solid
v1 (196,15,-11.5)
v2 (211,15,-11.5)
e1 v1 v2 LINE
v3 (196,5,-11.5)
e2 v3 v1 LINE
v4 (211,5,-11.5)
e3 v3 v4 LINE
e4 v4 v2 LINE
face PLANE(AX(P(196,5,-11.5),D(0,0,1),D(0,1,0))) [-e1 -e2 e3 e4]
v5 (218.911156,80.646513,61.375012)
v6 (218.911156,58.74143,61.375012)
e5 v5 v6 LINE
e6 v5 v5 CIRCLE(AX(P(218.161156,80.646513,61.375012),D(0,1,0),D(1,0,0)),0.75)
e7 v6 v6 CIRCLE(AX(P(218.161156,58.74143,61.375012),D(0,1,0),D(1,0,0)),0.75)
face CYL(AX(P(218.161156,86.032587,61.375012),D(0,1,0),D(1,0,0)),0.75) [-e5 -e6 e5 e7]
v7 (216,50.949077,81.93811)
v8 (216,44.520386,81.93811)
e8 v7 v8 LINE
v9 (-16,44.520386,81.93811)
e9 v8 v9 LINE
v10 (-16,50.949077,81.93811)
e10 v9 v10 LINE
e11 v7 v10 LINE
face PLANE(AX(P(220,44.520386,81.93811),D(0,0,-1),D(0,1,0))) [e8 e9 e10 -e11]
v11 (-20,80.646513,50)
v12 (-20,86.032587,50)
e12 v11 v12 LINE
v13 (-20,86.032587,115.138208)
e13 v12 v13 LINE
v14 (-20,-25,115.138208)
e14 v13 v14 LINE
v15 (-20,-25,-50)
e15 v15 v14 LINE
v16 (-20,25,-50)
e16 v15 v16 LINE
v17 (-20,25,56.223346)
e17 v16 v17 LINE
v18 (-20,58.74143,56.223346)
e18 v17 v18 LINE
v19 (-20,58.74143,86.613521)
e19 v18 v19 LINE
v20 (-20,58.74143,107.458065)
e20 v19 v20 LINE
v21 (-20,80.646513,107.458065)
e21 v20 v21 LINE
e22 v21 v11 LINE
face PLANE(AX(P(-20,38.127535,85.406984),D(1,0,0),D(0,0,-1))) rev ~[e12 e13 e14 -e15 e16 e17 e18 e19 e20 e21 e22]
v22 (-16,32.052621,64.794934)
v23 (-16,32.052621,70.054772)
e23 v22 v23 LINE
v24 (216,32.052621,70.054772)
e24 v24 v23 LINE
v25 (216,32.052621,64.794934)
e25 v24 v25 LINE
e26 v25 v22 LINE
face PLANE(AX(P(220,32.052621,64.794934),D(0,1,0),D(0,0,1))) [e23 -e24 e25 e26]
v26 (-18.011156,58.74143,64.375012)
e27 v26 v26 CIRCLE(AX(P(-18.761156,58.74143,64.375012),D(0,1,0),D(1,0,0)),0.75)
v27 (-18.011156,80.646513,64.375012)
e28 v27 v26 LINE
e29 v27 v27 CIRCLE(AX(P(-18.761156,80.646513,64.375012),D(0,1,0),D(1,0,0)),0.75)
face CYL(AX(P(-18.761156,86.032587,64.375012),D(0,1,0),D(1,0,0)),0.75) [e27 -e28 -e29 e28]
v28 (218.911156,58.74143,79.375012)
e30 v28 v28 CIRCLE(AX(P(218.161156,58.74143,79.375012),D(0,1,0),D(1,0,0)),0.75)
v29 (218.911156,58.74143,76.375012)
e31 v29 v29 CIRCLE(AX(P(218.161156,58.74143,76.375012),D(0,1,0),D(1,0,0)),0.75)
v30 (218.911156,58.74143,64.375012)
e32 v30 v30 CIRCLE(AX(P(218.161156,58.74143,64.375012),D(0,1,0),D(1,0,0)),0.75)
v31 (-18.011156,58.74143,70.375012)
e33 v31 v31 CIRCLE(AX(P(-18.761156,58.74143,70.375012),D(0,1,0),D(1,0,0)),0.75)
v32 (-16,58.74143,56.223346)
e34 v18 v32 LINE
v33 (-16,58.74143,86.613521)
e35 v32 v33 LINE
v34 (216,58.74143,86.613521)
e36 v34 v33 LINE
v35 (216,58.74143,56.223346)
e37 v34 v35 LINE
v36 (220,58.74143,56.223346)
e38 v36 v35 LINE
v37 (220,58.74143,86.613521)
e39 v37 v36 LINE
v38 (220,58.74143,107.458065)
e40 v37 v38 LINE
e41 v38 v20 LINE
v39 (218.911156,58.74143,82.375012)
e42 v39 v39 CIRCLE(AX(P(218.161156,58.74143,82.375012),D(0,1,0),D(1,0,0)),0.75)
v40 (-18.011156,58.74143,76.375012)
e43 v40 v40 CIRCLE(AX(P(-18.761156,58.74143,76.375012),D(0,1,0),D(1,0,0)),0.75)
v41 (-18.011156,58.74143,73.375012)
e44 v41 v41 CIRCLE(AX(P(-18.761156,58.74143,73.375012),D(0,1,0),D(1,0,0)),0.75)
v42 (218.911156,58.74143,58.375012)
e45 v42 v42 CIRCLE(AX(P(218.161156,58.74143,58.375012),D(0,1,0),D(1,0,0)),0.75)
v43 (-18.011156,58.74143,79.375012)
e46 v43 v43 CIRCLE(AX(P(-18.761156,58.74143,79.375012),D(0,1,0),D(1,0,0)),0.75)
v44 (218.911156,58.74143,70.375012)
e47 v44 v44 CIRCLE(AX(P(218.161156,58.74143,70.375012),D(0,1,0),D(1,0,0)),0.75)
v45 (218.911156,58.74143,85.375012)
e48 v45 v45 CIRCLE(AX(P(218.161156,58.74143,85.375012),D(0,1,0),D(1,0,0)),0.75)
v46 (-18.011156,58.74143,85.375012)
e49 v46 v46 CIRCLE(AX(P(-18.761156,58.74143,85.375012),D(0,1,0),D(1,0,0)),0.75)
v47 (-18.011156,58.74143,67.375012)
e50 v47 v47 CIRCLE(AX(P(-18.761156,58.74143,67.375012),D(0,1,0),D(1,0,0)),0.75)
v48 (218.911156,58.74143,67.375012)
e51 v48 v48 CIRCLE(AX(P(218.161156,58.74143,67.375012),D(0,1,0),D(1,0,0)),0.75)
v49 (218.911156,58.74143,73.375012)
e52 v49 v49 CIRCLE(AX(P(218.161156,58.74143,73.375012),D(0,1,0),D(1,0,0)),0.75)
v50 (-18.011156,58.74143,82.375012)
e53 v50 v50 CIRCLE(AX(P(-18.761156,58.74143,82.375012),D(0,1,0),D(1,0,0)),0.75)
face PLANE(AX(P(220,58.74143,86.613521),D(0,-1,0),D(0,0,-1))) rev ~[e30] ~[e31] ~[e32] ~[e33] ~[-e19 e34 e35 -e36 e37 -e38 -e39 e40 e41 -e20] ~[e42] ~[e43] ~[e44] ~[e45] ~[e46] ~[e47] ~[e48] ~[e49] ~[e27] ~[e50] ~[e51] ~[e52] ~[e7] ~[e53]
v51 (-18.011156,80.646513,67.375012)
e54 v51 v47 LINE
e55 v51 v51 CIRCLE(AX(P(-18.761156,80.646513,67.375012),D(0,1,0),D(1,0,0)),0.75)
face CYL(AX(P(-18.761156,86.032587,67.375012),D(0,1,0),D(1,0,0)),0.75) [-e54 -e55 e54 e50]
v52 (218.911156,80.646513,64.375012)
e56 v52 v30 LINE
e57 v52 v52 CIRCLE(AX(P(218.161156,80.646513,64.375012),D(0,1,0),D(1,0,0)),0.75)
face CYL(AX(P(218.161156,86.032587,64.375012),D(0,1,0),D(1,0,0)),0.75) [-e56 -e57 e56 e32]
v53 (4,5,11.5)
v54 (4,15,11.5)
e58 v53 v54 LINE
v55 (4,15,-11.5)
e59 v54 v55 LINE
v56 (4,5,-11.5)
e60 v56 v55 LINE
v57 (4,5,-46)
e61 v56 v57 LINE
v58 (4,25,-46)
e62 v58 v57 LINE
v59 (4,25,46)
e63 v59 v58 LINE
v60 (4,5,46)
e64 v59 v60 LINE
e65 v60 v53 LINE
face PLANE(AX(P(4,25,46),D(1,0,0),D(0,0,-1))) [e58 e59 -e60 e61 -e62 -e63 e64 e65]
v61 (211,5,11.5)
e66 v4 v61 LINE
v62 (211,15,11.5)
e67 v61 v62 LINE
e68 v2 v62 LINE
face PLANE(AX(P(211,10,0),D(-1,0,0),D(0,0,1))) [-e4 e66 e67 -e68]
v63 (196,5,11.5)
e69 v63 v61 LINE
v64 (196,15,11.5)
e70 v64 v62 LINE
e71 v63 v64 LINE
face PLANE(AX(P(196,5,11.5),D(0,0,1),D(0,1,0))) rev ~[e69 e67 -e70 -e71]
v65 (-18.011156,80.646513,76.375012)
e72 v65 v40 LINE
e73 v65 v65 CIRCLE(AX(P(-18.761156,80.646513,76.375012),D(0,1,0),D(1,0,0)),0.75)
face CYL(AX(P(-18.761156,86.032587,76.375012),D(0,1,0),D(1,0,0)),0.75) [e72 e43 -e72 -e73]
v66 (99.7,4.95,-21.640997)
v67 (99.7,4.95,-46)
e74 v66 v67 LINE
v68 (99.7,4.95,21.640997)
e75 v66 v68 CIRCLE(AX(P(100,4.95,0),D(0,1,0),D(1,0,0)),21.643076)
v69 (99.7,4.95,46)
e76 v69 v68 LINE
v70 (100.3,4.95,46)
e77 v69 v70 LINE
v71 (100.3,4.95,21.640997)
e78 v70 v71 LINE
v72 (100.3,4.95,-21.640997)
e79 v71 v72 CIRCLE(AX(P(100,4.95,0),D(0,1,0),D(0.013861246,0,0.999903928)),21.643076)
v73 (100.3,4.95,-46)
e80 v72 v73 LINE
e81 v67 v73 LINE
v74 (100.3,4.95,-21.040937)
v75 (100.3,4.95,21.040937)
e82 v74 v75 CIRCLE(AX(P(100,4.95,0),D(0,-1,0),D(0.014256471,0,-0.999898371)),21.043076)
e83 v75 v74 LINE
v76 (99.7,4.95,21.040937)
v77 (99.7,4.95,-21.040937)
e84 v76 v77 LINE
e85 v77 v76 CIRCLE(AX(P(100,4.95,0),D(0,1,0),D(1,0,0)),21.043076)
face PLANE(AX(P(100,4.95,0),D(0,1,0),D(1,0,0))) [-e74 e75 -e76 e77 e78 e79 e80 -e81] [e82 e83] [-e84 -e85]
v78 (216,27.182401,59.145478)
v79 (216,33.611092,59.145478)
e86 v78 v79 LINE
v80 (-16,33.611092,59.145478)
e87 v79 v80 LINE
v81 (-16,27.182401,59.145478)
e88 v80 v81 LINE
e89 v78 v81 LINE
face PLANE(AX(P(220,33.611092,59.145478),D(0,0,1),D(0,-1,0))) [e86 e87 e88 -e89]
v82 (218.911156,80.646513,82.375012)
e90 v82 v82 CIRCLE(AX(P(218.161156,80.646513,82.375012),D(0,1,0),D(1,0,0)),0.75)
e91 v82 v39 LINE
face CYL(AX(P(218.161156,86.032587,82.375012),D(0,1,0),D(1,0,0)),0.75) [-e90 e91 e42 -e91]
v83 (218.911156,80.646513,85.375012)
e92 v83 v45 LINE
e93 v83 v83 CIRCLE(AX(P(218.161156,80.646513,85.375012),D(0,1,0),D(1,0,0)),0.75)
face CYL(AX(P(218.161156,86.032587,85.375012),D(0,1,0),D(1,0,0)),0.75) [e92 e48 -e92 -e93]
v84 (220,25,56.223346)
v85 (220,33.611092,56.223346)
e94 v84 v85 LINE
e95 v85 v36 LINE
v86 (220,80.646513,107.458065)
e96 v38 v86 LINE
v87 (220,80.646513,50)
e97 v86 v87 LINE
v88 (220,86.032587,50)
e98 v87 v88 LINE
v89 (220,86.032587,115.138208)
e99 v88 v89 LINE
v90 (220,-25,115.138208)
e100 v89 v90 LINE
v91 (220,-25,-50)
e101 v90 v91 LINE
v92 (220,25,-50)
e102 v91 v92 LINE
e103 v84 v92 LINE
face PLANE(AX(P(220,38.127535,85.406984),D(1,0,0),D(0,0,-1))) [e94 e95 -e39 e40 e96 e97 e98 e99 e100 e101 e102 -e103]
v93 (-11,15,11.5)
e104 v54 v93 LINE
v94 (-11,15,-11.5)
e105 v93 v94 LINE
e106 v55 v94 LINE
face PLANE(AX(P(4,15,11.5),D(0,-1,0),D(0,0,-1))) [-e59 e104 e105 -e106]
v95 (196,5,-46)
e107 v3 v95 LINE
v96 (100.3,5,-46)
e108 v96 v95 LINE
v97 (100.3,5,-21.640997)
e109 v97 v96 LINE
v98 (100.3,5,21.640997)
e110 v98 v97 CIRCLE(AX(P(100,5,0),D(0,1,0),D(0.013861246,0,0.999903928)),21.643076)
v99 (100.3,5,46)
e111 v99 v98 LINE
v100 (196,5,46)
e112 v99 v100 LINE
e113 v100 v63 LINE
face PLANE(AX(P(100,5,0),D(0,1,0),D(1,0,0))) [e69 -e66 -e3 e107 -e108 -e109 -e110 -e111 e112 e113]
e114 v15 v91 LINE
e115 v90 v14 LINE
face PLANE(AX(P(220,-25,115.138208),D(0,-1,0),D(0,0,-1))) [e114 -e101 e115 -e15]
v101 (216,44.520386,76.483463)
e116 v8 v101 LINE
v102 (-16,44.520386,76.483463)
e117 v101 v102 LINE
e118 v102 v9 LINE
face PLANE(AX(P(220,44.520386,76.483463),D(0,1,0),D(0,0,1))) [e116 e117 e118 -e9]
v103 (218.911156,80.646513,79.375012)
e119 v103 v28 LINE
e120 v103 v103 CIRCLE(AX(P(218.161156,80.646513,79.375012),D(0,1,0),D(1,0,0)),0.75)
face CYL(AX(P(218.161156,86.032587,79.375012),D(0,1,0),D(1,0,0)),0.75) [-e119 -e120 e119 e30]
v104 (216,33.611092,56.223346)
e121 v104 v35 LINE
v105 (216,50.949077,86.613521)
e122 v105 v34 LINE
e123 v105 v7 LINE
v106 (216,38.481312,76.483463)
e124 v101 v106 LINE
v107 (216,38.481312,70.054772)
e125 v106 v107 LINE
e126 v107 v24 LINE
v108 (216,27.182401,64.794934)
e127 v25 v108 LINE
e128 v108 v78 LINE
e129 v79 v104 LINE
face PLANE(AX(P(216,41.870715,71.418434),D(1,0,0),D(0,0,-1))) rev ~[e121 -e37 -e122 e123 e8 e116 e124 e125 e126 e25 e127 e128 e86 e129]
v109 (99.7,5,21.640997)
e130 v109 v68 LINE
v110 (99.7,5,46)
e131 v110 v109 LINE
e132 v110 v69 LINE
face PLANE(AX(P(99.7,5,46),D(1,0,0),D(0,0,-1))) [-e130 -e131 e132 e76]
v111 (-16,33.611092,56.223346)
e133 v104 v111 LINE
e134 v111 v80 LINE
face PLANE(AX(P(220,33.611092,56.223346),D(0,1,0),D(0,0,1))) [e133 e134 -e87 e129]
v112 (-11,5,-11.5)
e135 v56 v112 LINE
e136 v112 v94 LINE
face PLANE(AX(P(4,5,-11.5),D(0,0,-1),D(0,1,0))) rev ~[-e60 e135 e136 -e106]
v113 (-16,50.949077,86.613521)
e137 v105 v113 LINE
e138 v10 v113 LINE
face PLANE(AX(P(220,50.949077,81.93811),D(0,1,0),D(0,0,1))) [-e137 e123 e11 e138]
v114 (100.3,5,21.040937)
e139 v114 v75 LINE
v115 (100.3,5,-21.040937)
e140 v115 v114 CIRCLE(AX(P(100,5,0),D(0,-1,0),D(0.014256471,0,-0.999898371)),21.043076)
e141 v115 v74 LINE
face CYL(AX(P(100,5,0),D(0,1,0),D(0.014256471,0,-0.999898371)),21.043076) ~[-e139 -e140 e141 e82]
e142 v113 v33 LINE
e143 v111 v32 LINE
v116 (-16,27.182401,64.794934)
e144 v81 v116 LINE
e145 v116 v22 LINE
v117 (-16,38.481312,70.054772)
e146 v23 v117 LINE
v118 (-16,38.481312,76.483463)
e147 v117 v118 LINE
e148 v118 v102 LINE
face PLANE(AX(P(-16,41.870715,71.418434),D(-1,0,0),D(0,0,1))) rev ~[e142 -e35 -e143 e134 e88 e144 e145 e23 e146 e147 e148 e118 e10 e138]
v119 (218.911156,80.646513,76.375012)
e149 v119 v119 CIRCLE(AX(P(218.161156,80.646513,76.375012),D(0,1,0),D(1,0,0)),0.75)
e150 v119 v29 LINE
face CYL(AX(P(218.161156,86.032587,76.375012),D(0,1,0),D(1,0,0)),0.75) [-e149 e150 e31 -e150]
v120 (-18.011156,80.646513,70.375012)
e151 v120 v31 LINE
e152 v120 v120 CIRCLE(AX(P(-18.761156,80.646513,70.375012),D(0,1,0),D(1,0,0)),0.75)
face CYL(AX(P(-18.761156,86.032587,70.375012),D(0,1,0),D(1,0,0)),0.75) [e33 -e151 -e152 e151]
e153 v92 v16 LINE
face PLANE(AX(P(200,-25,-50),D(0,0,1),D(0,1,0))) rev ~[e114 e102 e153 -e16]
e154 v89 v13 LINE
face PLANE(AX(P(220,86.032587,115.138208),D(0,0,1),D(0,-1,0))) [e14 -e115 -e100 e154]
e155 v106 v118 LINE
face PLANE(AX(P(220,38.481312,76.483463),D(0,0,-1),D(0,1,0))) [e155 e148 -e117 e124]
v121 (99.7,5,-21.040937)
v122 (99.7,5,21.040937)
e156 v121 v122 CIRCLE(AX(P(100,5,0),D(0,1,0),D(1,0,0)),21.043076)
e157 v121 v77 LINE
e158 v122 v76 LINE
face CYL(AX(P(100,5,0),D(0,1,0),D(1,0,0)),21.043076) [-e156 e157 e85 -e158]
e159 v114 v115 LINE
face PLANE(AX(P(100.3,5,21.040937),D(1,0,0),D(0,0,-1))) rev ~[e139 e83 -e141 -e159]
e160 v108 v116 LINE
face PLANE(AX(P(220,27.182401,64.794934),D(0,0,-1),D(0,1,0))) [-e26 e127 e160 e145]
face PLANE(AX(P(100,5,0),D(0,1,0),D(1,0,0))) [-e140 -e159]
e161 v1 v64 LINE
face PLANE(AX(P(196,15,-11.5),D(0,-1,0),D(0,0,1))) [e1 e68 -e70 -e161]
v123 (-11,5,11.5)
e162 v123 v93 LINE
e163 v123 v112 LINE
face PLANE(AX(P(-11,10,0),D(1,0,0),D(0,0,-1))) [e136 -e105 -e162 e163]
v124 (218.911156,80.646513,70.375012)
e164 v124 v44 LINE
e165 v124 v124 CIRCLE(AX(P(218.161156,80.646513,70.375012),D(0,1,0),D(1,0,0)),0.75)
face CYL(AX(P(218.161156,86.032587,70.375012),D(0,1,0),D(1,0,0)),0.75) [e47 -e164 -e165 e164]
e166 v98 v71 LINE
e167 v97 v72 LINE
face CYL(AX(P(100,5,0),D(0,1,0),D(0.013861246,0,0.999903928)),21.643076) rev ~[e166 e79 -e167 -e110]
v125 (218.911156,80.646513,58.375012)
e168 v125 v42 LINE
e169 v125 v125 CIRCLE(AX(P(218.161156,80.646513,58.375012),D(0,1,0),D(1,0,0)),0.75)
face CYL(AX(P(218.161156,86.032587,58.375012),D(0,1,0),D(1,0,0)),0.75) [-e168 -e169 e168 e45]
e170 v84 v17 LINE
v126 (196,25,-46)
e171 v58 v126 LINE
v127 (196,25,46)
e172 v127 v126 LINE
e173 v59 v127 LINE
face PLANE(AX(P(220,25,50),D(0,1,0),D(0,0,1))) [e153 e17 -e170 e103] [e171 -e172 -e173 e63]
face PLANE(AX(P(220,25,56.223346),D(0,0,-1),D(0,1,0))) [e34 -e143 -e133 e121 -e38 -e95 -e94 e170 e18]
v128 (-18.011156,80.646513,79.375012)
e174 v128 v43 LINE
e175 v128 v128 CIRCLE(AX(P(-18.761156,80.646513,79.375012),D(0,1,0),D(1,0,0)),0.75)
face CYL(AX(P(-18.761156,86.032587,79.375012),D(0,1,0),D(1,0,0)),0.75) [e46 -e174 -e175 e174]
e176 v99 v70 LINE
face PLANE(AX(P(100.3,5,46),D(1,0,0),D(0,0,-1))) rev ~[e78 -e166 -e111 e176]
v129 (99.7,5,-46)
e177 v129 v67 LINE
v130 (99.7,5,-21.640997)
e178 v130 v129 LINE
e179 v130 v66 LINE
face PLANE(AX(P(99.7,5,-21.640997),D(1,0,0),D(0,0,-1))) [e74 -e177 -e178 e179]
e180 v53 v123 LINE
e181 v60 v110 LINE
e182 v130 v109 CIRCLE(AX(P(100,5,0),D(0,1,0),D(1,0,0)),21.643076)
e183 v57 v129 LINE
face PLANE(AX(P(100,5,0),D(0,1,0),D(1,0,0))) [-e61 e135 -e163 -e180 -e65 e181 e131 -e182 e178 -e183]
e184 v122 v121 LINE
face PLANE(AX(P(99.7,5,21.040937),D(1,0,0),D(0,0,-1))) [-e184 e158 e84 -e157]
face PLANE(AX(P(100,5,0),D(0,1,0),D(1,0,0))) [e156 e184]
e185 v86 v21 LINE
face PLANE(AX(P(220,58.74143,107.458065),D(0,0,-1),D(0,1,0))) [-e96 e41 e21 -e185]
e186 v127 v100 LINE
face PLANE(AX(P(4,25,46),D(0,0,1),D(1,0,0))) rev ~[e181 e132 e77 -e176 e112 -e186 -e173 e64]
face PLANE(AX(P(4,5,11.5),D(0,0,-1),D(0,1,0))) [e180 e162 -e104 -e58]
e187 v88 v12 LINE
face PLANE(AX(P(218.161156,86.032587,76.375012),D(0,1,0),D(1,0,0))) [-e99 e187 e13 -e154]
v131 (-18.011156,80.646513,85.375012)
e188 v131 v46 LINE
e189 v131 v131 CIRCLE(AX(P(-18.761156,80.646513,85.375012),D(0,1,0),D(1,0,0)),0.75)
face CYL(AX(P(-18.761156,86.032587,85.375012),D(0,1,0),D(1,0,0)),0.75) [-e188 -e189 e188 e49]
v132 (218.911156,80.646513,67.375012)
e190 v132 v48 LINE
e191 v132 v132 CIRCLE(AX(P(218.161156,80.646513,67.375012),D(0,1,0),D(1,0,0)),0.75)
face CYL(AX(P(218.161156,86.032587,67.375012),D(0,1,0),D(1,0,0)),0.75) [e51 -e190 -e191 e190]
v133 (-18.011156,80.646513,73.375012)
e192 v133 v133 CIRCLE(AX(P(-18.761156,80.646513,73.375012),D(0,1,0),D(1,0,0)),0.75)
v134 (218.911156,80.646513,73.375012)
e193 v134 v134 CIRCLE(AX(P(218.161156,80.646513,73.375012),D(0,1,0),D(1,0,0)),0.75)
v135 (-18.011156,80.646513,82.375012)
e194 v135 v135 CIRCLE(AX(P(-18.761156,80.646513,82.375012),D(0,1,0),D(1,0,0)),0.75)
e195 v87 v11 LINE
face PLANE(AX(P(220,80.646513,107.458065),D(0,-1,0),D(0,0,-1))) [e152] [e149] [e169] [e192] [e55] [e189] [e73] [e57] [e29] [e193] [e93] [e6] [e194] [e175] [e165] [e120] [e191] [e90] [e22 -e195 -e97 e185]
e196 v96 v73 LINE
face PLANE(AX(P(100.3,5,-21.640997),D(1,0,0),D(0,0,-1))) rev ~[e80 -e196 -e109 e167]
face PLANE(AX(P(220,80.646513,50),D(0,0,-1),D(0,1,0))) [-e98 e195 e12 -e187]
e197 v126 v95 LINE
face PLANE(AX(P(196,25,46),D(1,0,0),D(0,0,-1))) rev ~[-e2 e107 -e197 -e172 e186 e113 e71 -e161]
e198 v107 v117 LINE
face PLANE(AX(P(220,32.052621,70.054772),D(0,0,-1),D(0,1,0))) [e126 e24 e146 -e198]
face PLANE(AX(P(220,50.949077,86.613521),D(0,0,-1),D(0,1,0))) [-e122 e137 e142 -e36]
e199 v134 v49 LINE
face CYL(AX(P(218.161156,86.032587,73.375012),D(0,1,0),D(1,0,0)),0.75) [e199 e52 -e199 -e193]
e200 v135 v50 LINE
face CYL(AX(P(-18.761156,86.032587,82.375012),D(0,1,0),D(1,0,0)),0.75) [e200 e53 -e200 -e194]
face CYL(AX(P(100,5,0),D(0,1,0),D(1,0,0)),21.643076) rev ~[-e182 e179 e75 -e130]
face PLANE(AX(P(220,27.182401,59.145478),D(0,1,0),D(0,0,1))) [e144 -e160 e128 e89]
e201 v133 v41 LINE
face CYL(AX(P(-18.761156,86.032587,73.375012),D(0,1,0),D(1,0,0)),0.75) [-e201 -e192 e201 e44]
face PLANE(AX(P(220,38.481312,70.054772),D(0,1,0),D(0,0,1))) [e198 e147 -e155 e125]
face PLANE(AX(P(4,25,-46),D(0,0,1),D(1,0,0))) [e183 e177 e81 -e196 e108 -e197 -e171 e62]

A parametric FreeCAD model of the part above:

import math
import FreeCAD as App
import Part
import Sketcher
from FreeCAD import Vector

doc = App.newDocument("Part")
body = doc.addObject("PartDesign::Body", "Body")

# Sketch on YZ plane
sketch1 = body.newObject("Sketcher::SketchObject", "Sketch")
sketch1.AttachmentSupport = (doc.getObject("YZ_Plane"), [""])
sketch1.MapMode = "FlatFace"
sketch1.addGeometry(Part.LineSegment(Vector(25, 50, 0), Vector(-25, 50, 0)), False)
sketch1.addGeometry(Part.LineSegment(Vector(-25, 50, 0), Vector(-25, -50, 0)), False)
sketch1.addGeometry(Part.LineSegment(Vector(-25, -50, 0), Vector(25, -50, 0)), False)
sketch1.addGeometry(Part.LineSegment(Vector(25, -50, 0), Vector(25, 50, 0)), False)
sketch1.addConstraint(Sketcher.Constraint("Coincident", 0, 2, 1, 1))
sketch1.addConstraint(Sketcher.Constraint("Coincident", 1, 2, 2, 1))
sketch1.addConstraint(Sketcher.Constraint("Coincident", 2, 2, 3, 1))
sketch1.addConstraint(Sketcher.Constraint("Coincident", 3, 2, 0, 1))
sketch1.addConstraint(Sketcher.Constraint("Horizontal", 0))
sketch1.addConstraint(Sketcher.Constraint("Vertical", 1))
sketch1.addConstraint(Sketcher.Constraint("Horizontal", 2))
sketch1.addConstraint(Sketcher.Constraint("Vertical", 3))
sketch1.addConstraint(Sketcher.Constraint("Symmetric", 0, 2, 2, 2, -1, 1))
sketch1.addConstraint(Sketcher.Constraint("DistanceX", 0, 2, 0, 1, 50.0))
sketch1.addConstraint(Sketcher.Constraint("DistanceY", 1, 2, 1, 1, 100.0))
pad1 = body.newObject("PartDesign::Pad", "Pad")
pad1.Profile = sketch1
pad1.Length = 200

# Sketch on XZ plane
sketch2 = body.newObject("Sketcher::SketchObject", "Sketch001")
sketch2.AttachmentSupport = (doc.getObject("XZ_Plane"), [""])
sketch2.MapMode = "FlatFace"
sketch2.AttachmentOffset = App.Placement(Vector(0, 0, -25), App.Rotation())
sketch2.addGeometry(Part.LineSegment(Vector(4, -46, 0), Vector(4, 46, 0)), False)
sketch2.addGeometry(Part.LineSegment(Vector(4, 46, 0), Vector(196, 46, 0)), False)
sketch2.addGeometry(Part.LineSegment(Vector(196, 46, 0), Vector(196, -46, 0)), False)
sketch2.addGeometry(Part.LineSegment(Vector(196, -46, 0), Vector(4, -46, 0)), False)
sketch2.addConstraint(Sketcher.Constraint("Coincident", 0, 2, 1, 1))
sketch2.addConstraint(Sketcher.Constraint("Coincident", 1, 2, 2, 1))
sketch2.addConstraint(Sketcher.Constraint("Coincident", 2, 2, 3, 1))
sketch2.addConstraint(Sketcher.Constraint("Coincident", 3, 2, 0, 1))
sketch2.addConstraint(Sketcher.Constraint("Vertical", 0))
sketch2.addConstraint(Sketcher.Constraint("Horizontal", 1))
sketch2.addConstraint(Sketcher.Constraint("Vertical", 2))
sketch2.addConstraint(Sketcher.Constraint("Horizontal", 3))
sketch2.addConstraint(Sketcher.Constraint("DistanceX", 1, 1, 1, 2, 192.0))
sketch2.addConstraint(Sketcher.Constraint("DistanceY", 0, 1, 0, 2, 92.0))
sketch2.addConstraint(Sketcher.Constraint("DistanceX", -1, 1, 0, 2, 4.0))
sketch2.addConstraint(Sketcher.Constraint("DistanceY", -1, 1, 0, 2, 46.0))
pocket1 = body.newObject("PartDesign::Pocket", "Pocket")
pocket1.Profile = sketch2
pocket1.Length = 20
pocket1.Reversed = True

# Sketch on YZ plane
sketch3 = body.newObject("Sketcher::SketchObject", "Sketch002")
sketch3.AttachmentSupport = (doc.getObject("YZ_Plane"), [""])
sketch3.MapMode = "FlatFace"
sketch3.addGeometry(Part.LineSegment(Vector(25, -50, 0), Vector(-25, -50, 0)), False)
sketch3.addGeometry(Part.LineSegment(Vector(-25, -50, 0), Vector(-25, 50, 0)), False)
sketch3.addGeometry(Part.LineSegment(Vector(-25, 50, 0), Vector(25, 50, 0)), False)
sketch3.addGeometry(Part.LineSegment(Vector(25, 50, 0), Vector(25, -50, 0)), False)
sketch3.addConstraint(Sketcher.Constraint("Coincident", 0, 2, 1, 1))
sketch3.addConstraint(Sketcher.Constraint("Coincident", 1, 2, 2, 1))
sketch3.addConstraint(Sketcher.Constraint("Coincident", 2, 2, 3, 1))
sketch3.addConstraint(Sketcher.Constraint("Coincident", 3, 2, 0, 1))
sketch3.addConstraint(Sketcher.Constraint("Horizontal", 0))
sketch3.addConstraint(Sketcher.Constraint("Vertical", 1))
sketch3.addConstraint(Sketcher.Constraint("Horizontal", 2))
sketch3.addConstraint(Sketcher.Constraint("Vertical", 3))
sketch3.addConstraint(Sketcher.Constraint("Symmetric", 0, 2, 2, 2, -1, 1))
sketch3.addConstraint(Sketcher.Constraint("DistanceX", 0, 2, 0, 1, 50.0))
sketch3.addConstraint(Sketcher.Constraint("DistanceY", 1, 1, 1, 2, 100.0))
pad2 = body.newObject("PartDesign::Pad", "Pad001")
pad2.Profile = sketch3
pad2.Length = 20
pad2.Reversed = True

# Sketch on YZ plane
sketch4 = body.newObject("Sketcher::SketchObject", "Sketch003")
sketch4.AttachmentSupport = (doc.getObject("YZ_Plane"), [""])
sketch4.MapMode = "FlatFace"
sketch4.AttachmentOffset = App.Placement(Vector(0, 0, 200), App.Rotation())
sketch4.addGeometry(Part.LineSegment(Vector(25, 50, 0), Vector(-25, 50, 0)), False)
sketch4.addGeometry(Part.LineSegment(Vector(-25, 50, 0), Vector(-25, -50, 0)), False)
sketch4.addGeometry(Part.LineSegment(Vector(-25, -50, 0), Vector(25, -50, 0)), False)
sketch4.addGeometry(Part.LineSegment(Vector(25, -50, 0), Vector(25, 50, 0)), False)
sketch4.addConstraint(Sketcher.Constraint("Coincident", 0, 2, 1, 1))
sketch4.addConstraint(Sketcher.Constraint("Coincident", 1, 2, 2, 1))
sketch4.addConstraint(Sketcher.Constraint("Coincident", 2, 2, 3, 1))
sketch4.addConstraint(Sketcher.Constraint("Coincident", 3, 2, 0, 1))
sketch4.addConstraint(Sketcher.Constraint("Horizontal", 0))
sketch4.addConstraint(Sketcher.Constraint("Vertical", 1))
sketch4.addConstraint(Sketcher.Constraint("Horizontal", 2))
sketch4.addConstraint(Sketcher.Constraint("Vertical", 3))
sketch4.addConstraint(Sketcher.Constraint("Symmetric", 0, 2, 2, 2, -1, 1))
sketch4.addConstraint(Sketcher.Constraint("DistanceX", 0, 2, 0, 1, 50.0))
sketch4.addConstraint(Sketcher.Constraint("DistanceY", 1, 2, 1, 1, 100.0))
pad3 = body.newObject("PartDesign::Pad", "Pad002")
pad3.Profile = sketch4
pad3.Length = 20

# Sketch on YZ plane
sketch5 = body.newObject("Sketcher::SketchObject", "Sketch004")
sketch5.AttachmentSupport = (doc.getObject("YZ_Plane"), [""])
sketch5.MapMode = "FlatFace"
sketch5.AttachmentOffset = App.Placement(Vector(0, 0, 4), App.Rotation())
sketch5.addGeometry(Part.LineSegment(Vector(15, 12, 0), Vector(5, 12, 0)), False)
sketch5.addGeometry(Part.LineSegment(Vector(5, 12, 0), Vector(5, -12, 0)), False)
sketch5.addGeometry(Part.LineSegment(Vector(5, -12, 0), Vector(15, -12, 0)), False)
sketch5.addGeometry(Part.LineSegment(Vector(15, -12, 0), Vector(15, 12, 0)), False)
sketch5.addConstraint(Sketcher.Constraint("Coincident", 0, 2, 1, 1))
sketch5.addConstraint(Sketcher.Constraint("Coincident", 1, 2, 2, 1))
sketch5.addConstraint(Sketcher.Constraint("Coincident", 2, 2, 3, 1))
sketch5.addConstraint(Sketcher.Constraint("Coincident", 3, 2, 0, 1))
sketch5.addConstraint(Sketcher.Constraint("Horizontal", 0))
sketch5.addConstraint(Sketcher.Constraint("Vertical", 1))
sketch5.addConstraint(Sketcher.Constraint("Horizontal", 2))
sketch5.addConstraint(Sketcher.Constraint("Vertical", 3))
sketch5.addConstraint(Sketcher.Constraint("DistanceX", 0, 2, 0, 1, 10.0))
sketch5.addConstraint(Sketcher.Constraint("DistanceY", 1, 2, 1, 1, 23.0))
sketch5.addConstraint(Sketcher.Constraint("DistanceX", -1, 1, 0, 2, 5.0))
sketch5.addConstraint(Sketcher.Constraint("DistanceY", -1, 1, 0, 2, 11.5))
pocket2 = body.newObject("PartDesign::Pocket", "Pocket001")
pocket2.Profile = sketch5
pocket2.Length = 15

# Sketch on YZ plane
sketch6 = body.newObject("Sketcher::SketchObject", "Sketch005")
sketch6.AttachmentSupport = (doc.getObject("YZ_Plane"), [""])
sketch6.MapMode = "FlatFace"
sketch6.AttachmentOffset = App.Placement(Vector(0, 0, 196), App.Rotation())
sketch6.addGeometry(Part.LineSegment(Vector(15, -12, 0), Vector(5, -12, 0)), False)
sketch6.addGeometry(Part.LineSegment(Vector(5, -12, 0), Vector(5, 12, 0)), False)
sketch6.addGeometry(Part.LineSegment(Vector(5, 12, 0), Vector(15, 12, 0)), False)
sketch6.addGeometry(Part.LineSegment(Vector(15, 12, 0), Vector(15, -12, 0)), False)
sketch6.addConstraint(Sketcher.Constraint("Coincident", 0, 2, 1, 1))
sketch6.addConstraint(Sketcher.Constraint("Coincident", 1, 2, 2, 1))
sketch6.addConstraint(Sketcher.Constraint("Coincident", 2, 2, 3, 1))
sketch6.addConstraint(Sketcher.Constraint("Coincident", 3, 2, 0, 1))
sketch6.addConstraint(Sketcher.Constraint("Horizontal", 0))
sketch6.addConstraint(Sketcher.Constraint("Vertical", 1))
sketch6.addConstraint(Sketcher.Constraint("Horizontal", 2))
sketch6.addConstraint(Sketcher.Constraint("Vertical", 3))
sketch6.addConstraint(Sketcher.Constraint("DistanceX", 0, 2, 0, 1, 10.0))
sketch6.addConstraint(Sketcher.Constraint("DistanceY", 1, 1, 1, 2, 23.0))
sketch6.addConstraint(Sketcher.Constraint("DistanceX", -1, 1, 0, 2, 5.0))
sketch6.addConstraint(Sketcher.Constraint("DistanceY", 0, 2, -1, 1, 11.5))
pocket3 = body.newObject("PartDesign::Pocket", "Pocket002")
pocket3.Profile = sketch6
pocket3.Length = 15
pocket3.Reversed = True

# Sketch on XZ plane
sketch7 = body.newObject("Sketcher::SketchObject", "Sketch006")
sketch7.AttachmentSupport = (doc.getObject("XZ_Plane"), [""])
sketch7.MapMode = "FlatFace"
sketch7.AttachmentOffset = App.Placement(Vector(0, 0, -5), App.Rotation())
sketch7.addGeometry(Part.ArcOfCircle(Part.Circle(Vector(100, 0, 0), Vector(0, 0, 1), 21.6), math.radians(-89), math.radians(89)), False)
sketch7.addGeometry(Part.LineSegment(Vector(100.3, -21.6, 0), Vector(100.3, -46, 0)), False)
sketch7.addGeometry(Part.LineSegment(Vector(100.3, -46, 0), Vector(99.7, -46, 0)), False)
sketch7.addGeometry(Part.LineSegment(Vector(99.7, -46, 0), Vector(99.7, -21.6, 0)), False)
sketch7.addGeometry(Part.ArcOfCircle(Part.Circle(Vector(100, 0, 0), Vector(0, 0, 1), 21.6), math.radians(91), math.radians(269)), False)
sketch7.addGeometry(Part.LineSegment(Vector(99.7, 21.6, 0), Vector(99.7, 46, 0)), False)
sketch7.addGeometry(Part.LineSegment(Vector(99.7, 46, 0), Vector(100.3, 46, 0)), False)
sketch7.addGeometry(Part.LineSegment(Vector(100.3, 46, 0), Vector(100.3, 21.6, 0)), False)
sketch7.addGeometry(Part.LineSegment(Vector(100.3, 21, 0), Vector(100.3, -21, 0)), False)
sketch7.addGeometry(Part.ArcOfCircle(Part.Circle(Vector(100, 0, 0), Vector(0, 0, 1), 21), math.radians(-89), math.radians(89)), False)
sketch7.addGeometry(Part.ArcOfCircle(Part.Circle(Vector(100, 0, 0), Vector(0, 0, 1), 21), math.radians(91), math.radians(269)), False)
sketch7.addGeometry(Part.LineSegment(Vector(99.7, -21, 0), Vector(99.7, 21, 0)), False)
sketch7.addConstraint(Sketcher.Constraint("Coincident", 0, 1, 1, 1))
sketch7.addConstraint(Sketcher.Constraint("Coincident", 1, 2, 2, 1))
sketch7.addConstraint(Sketcher.Constraint("Coincident", 2, 2, 3, 1))
sketch7.addConstraint(Sketcher.Constraint("Coincident", 3, 2, 4, 2))
sketch7.addConstraint(Sketcher.Constraint("Coincident", 4, 1, 5, 1))
sketch7.addConstraint(Sketcher.Constraint("Coincident", 5, 2, 6, 1))
sketch7.addConstraint(Sketcher.Constraint("Coincident", 6, 2, 7, 1))
sketch7.addConstraint(Sketcher.Constraint("Coincident", 7, 2, 0, 2))
sketch7.addConstraint(Sketcher.Constraint("Coincident", 8, 1, 9, 2))
sketch7.addConstraint(Sketcher.Constraint("Coincident", 9, 1, 8, 2))
sketch7.addConstraint(Sketcher.Constraint("Coincident", 10, 1, 11, 2))
sketch7.addConstraint(Sketcher.Constraint("Coincident", 11, 1, 10, 2))
sketch7.addConstraint(Sketcher.Constraint("Vertical", 1))
sketch7.addConstraint(Sketcher.Constraint("Horizontal", 2))
sketch7.addConstraint(Sketcher.Constraint("Vertical", 3))
sketch7.addConstraint(Sketcher.Constraint("Vertical", 5))
sketch7.addConstraint(Sketcher.Constraint("Horizontal", 6))
sketch7.addConstraint(Sketcher.Constraint("Vertical", 7))
sketch7.addConstraint(Sketcher.Constraint("Vertical", 8))
sketch7.addConstraint(Sketcher.Constraint("Vertical", 11))
sketch7.addConstraint(Sketcher.Constraint("Coincident", 4, 3, 0, 3))
sketch7.addConstraint(Sketcher.Constraint("Coincident", 9, 3, 0, 3))
sketch7.addConstraint(Sketcher.Constraint("Coincident", 10, 3, 0, 3))
sketch7.addConstraint(Sketcher.Constraint("Equal", 0, 4))
sketch7.addConstraint(Sketcher.Constraint("Equal", 9, 10))
sketch7.addConstraint(Sketcher.Constraint("Symmetric", 3, 2, 4, 1, -1))
sketch7.addConstraint(Sketcher.Constraint("Symmetric", 1, 2, 6, 2, -1))
sketch7.addConstraint(Sketcher.Constraint("Horizontal", 0, 1, 3, 2))
sketch7.addConstraint(Sketcher.Constraint("Horizontal", 8, 1, 10, 1))
sketch7.addConstraint(Sketcher.Constraint("Vertical", 7, 2, 8, 1))
sketch7.addConstraint(Sketcher.Constraint("DistanceX", 2, 2, 2, 1, 0.6))
sketch7.addConstraint(Sketcher.Constraint("DistanceX", -1, 1, 0, 3, 100.0))
sketch7.addConstraint(Sketcher.Constraint("DistanceY", 1, 2, -1, 1, 46.0))
sketch7.addConstraint(Sketcher.Constraint("Radius", 0, 21.643076))
sketch7.addConstraint(Sketcher.Constraint("Radius", 9, 21.043076))
pocket4 = body.newObject("PartDesign::Pocket", "Pocket003")
pocket4.Profile = sketch7
pocket4.Length = 0.05
pocket4.Reversed = True

# Sketch on YZ plane
sketch8 = body.newObject("Sketcher::SketchObject", "Sketch007")
sketch8.AttachmentSupport = (doc.getObject("YZ_Plane"), [""])
sketch8.MapMode = "FlatFace"
sketch8.AttachmentOffset = App.Placement(Vector(0, 0, 220), App.Rotation())
sketch8.addGeometry(Part.LineSegment(Vector(25, 50, 0), Vector(25, 56.2, 0)), False)
sketch8.addGeometry(Part.LineSegment(Vector(25, 56.2, 0), Vector(33.6, 56.2, 0)), False)
sketch8.addGeometry(Part.LineSegment(Vector(33.6, 56.2, 0), Vector(33.6, 59.1, 0)), False)
sketch8.addGeometry(Part.LineSegment(Vector(33.6, 59.1, 0), Vector(27.2, 59.1, 0)), False)
sketch8.addGeometry(Part.LineSegment(Vector(27.2, 59.1, 0), Vector(27.2, 64.8, 0)), False)
sketch8.addGeometry(Part.LineSegment(Vector(27.2, 64.8, 0), Vector(32.1, 64.8, 0)), False)
sketch8.addGeometry(Part.LineSegment(Vector(32.1, 64.8, 0), Vector(32.1, 70.1, 0)), False)
sketch8.addGeometry(Part.LineSegment(Vector(32.1, 70.1, 0), Vector(38.5, 70.1, 0)), False)
sketch8.addGeometry(Part.LineSegment(Vector(38.5, 70.1, 0), Vector(38.5, 76.5, 0)), False)
sketch8.addGeometry(Part.LineSegment(Vector(38.5, 76.5, 0), Vector(44.5, 76.5, 0)), False)
sketch8.addGeometry(Part.LineSegment(Vector(44.5, 76.5, 0), Vector(44.5, 81.9, 0)), False)
sketch8.addGeometry(Part.LineSegment(Vector(44.5, 81.9, 0), Vector(50.9, 81.9, 0)), False)
sketch8.addGeometry(Part.LineSegment(Vector(50.9, 81.9, 0), Vector(50.9, 86.6, 0)), False)
sketch8.addGeometry(Part.LineSegment(Vector(50.9, 86.6, 0), Vector(58.7, 86.6, 0)), False)
sketch8.addGeometry(Part.LineSegment(Vector(58.7, 86.6, 0), Vector(58.7, 107.5, 0)), False)
sketch8.addGeometry(Part.LineSegment(Vector(58.7, 107.5, 0), Vector(80.6, 107.5, 0)), False)
sketch8.addGeometry(Part.LineSegment(Vector(80.6, 107.5, 0), Vector(80.6, 50, 0)), False)
sketch8.addGeometry(Part.LineSegment(Vector(80.6, 50, 0), Vector(86, 50, 0)), False)
sketch8.addGeometry(Part.LineSegment(Vector(86, 50, 0), Vector(86, 115.1, 0)), False)
sketch8.addGeometry(Part.LineSegment(Vector(86, 115.1, 0), Vector(-25, 115.1, 0)), False)
sketch8.addGeometry(Part.LineSegment(Vector(-25, 115.1, 0), Vector(-25, 50, 0)), False)
sketch8.addGeometry(Part.LineSegment(Vector(-25, 50, 0), Vector(25, 50, 0)), False)
sketch8.addConstraint(Sketcher.Constraint("Coincident", 0, 2, 1, 1))
sketch8.addConstraint(Sketcher.Constraint("Coincident", 1, 2, 2, 1))
sketch8.addConstraint(Sketcher.Constraint("Coincident", 2, 2, 3, 1))
sketch8.addConstraint(Sketcher.Constraint("Coincident", 3, 2, 4, 1))
sketch8.addConstraint(Sketcher.Constraint("Coincident", 4, 2, 5, 1))
sketch8.addConstraint(Sketcher.Constraint("Coincident", 5, 2, 6, 1))
sketch8.addConstraint(Sketcher.Constraint("Coincident", 6, 2, 7, 1))
sketch8.addConstraint(Sketcher.Constraint("Coincident", 7, 2, 8, 1))
sketch8.addConstraint(Sketcher.Constraint("Coincident", 8, 2, 9, 1))
sketch8.addConstraint(Sketcher.Constraint("Coincident", 9, 2, 10, 1))
sketch8.addConstraint(Sketcher.Constraint("Coincident", 10, 2, 11, 1))
sketch8.addConstraint(Sketcher.Constraint("Coincident", 11, 2, 12, 1))
sketch8.addConstraint(Sketcher.Constraint("Coincident", 12, 2, 13, 1))
sketch8.addConstraint(Sketcher.Constraint("Coincident", 13, 2, 14, 1))
sketch8.addConstraint(Sketcher.Constraint("Coincident", 14, 2, 15, 1))
sketch8.addConstraint(Sketcher.Constraint("Coincident", 15, 2, 16, 1))
sketch8.addConstraint(Sketcher.Constraint("Coincident", 16, 2, 17, 1))
sketch8.addConstraint(Sketcher.Constraint("Coincident", 17, 2, 18, 1))
sketch8.addConstraint(Sketcher.Constraint("Coincident", 18, 2, 19, 1))
sketch8.addConstraint(Sketcher.Constraint("Coincident", 19, 2, 20, 1))
sketch8.addConstraint(Sketcher.Constraint("Coincident", 20, 2, 21, 1))
sketch8.addConstraint(Sketcher.Constraint("Coincident", 21, 2, 0, 1))
sketch8.addConstraint(Sketcher.Constraint("Vertical", 0))
sketch8.addConstraint(Sketcher.Constraint("Horizontal", 1))
sketch8.addConstraint(Sketcher.Constraint("Vertical", 2))
sketch8.addConstraint(Sketcher.Constraint("Horizontal", 3))
sketch8.addConstraint(Sketcher.Constraint("Vertical", 4))
sketch8.addConstraint(Sketcher.Constraint("Horizontal", 5))
sketch8.addConstraint(Sketcher.Constraint("Vertical", 6))
sketch8.addConstraint(Sketcher.Constraint("Horizontal", 7))
sketch8.addConstraint(Sketcher.Constraint("Vertical", 8))
sketch8.addConstraint(Sketcher.Constraint("Horizontal", 9))
sketch8.addConstraint(Sketcher.Constraint("Vertical", 10))
sketch8.addConstraint(Sketcher.Constraint("Horizontal", 11))
sketch8.addConstraint(Sketcher.Constraint("Vertical", 12))
sketch8.addConstraint(Sketcher.Constraint("Horizontal", 13))
sketch8.addConstraint(Sketcher.Constraint("Vertical", 14))
sketch8.addConstraint(Sketcher.Constraint("Horizontal", 15))
sketch8.addConstraint(Sketcher.Constraint("Vertical", 16))
sketch8.addConstraint(Sketcher.Constraint("Horizontal", 17))
sketch8.addConstraint(Sketcher.Constraint("Vertical", 18))
sketch8.addConstraint(Sketcher.Constraint("Horizontal", 19))
sketch8.addConstraint(Sketcher.Constraint("Vertical", 20))
sketch8.addConstraint(Sketcher.Constraint("Horizontal", 21))
sketch8.addConstraint(Sketcher.Constraint("Horizontal", 17, 2, 20, 2))
sketch8.addConstraint(Sketcher.Constraint("Equal", 3, 7))
sketch8.addConstraint(Sketcher.Constraint("Equal", 7, 11))
sketch8.addConstraint(Sketcher.Constraint("Equal", 11, 8))
sketch8.addConstraint(Sketcher.Constraint("DistanceX", 21, 1, 21, 2, 50.0))
sketch8.addConstraint(Sketcher.Constraint("DistanceX", -1, 1, 0, 2, 25.0))
sketch8.addConstraint(Sketcher.Constraint("DistanceY", -1, 1, 16, 2, 50.0))
sketch8.addConstraint(Sketcher.Constraint("DistanceX", 1, 1, 1, 2, 8.611092))
sketch8.addConstraint(Sketcher.Constraint("DistanceX", 3, 2, 3, 1, 6.428691))
sketch8.addConstraint(Sketcher.Constraint("DistanceX", 5, 1, 5, 2, 4.87022))
sketch8.addConstraint(Sketcher.Constraint("DistanceY", 6, 1, 6, 2, 5.259838))
sketch8.addConstraint(Sketcher.Constraint("DistanceY", 12, 1, 12, 2, 4.675412))
sketch8.addConstraint(Sketcher.Constraint("DistanceY", 18, 1, 18, 2, 65.138208))
sketch8.addConstraint(Sketcher.Constraint("DistanceX", 7, 2, 16, 2, 42.1652))
sketch8.addConstraint(Sketcher.Constraint("DistanceX", 9, 2, 17, 2, 41.512201))
sketch8.addConstraint(Sketcher.Constraint("DistanceY", 11, 2, 18, 2, 33.200098))
sketch8.addConstraint(Sketcher.Constraint("DistanceX", 9, 1, 9, 2, 6.039073))
sketch8.addConstraint(Sketcher.Constraint("DistanceX", 13, 1, 13, 2, 7.792353))
sketch8.addConstraint(Sketcher.Constraint("DistanceY", 0, 1, 0, 2, 6.223346))
sketch8.addConstraint(Sketcher.Constraint("DistanceY", 2, 1, 2, 2, 2.922132))
sketch8.addConstraint(Sketcher.Constraint("DistanceY", 4, 1, 4, 2, 5.649456))
sketch8.addConstraint(Sketcher.Constraint("DistanceY", 14, 1, 14, 2, 20.844544))
pad4 = body.newObject("PartDesign::Pad", "Pad003")
pad4.Profile = sketch8
pad4.Length = 240
pad4.Reversed = True

# Sketch on YZ plane
sketch9 = body.newObject("Sketcher::SketchObject", "Sketch008")
sketch9.AttachmentSupport = (doc.getObject("YZ_Plane"), [""])
sketch9.MapMode = "FlatFace"
sketch9.AttachmentOffset = App.Placement(Vector(0, 0, 220), App.Rotation())
sketch9.addGeometry(Part.LineSegment(Vector(59, 87, 0), Vector(25, 87, 0)), False)
sketch9.addGeometry(Part.LineSegment(Vector(25, 87, 0), Vector(25, 56, 0)), False)
sketch9.addGeometry(Part.LineSegment(Vector(25, 56, 0), Vector(59, 56, 0)), False)
sketch9.addGeometry(Part.LineSegment(Vector(59, 56, 0), Vector(59, 87, 0)), False)
sketch9.addConstraint(Sketcher.Constraint("Coincident", 0, 2, 1, 1))
sketch9.addConstraint(Sketcher.Constraint("Coincident", 1, 2, 2, 1))
sketch9.addConstraint(Sketcher.Constraint("Coincident", 2, 2, 3, 1))
sketch9.addConstraint(Sketcher.Constraint("Coincident", 3, 2, 0, 1))
sketch9.addConstraint(Sketcher.Constraint("Horizontal", 0))
sketch9.addConstraint(Sketcher.Constraint("Vertical", 1))
sketch9.addConstraint(Sketcher.Constraint("Horizontal", 2))
sketch9.addConstraint(Sketcher.Constraint("Vertical", 3))
sketch9.addConstraint(Sketcher.Constraint("DistanceX", -1, 1, 0, 2, 25.0))
sketch9.addConstraint(Sketcher.Constraint("DistanceX", 0, 2, 0, 1, 33.74143))
sketch9.addConstraint(Sketcher.Constraint("DistanceY", 1, 2, 1, 1, 30.390176))
sketch9.addConstraint(Sketcher.Constraint("DistanceY", -1, 1, 0, 2, 86.613521))
pad5 = body.newObject("PartDesign::Pad", "Pad004")
pad5.Profile = sketch9
pad5.Length = 4
pad5.Reversed = True

# Sketch on YZ plane
sketch10 = body.newObject("Sketcher::SketchObject", "Sketch009")
sketch10.AttachmentSupport = (doc.getObject("YZ_Plane"), [""])
sketch10.MapMode = "FlatFace"
sketch10.AttachmentOffset = App.Placement(Vector(0, 0, -20), App.Rotation())
sketch10.addGeometry(Part.LineSegment(Vector(59, 56, 0), Vector(25, 56, 0)), False)
sketch10.addGeometry(Part.LineSegment(Vector(25, 56, 0), Vector(25, 87, 0)), False)
sketch10.addGeometry(Part.LineSegment(Vector(25, 87, 0), Vector(59, 87, 0)), False)
sketch10.addGeometry(Part.LineSegment(Vector(59, 87, 0), Vector(59, 56, 0)), False)
sketch10.addConstraint(Sketcher.Constraint("Coincident", 0, 2, 1, 1))
sketch10.addConstraint(Sketcher.Constraint("Coincident", 1, 2, 2, 1))
sketch10.addConstraint(Sketcher.Constraint("Coincident", 2, 2, 3, 1))
sketch10.addConstraint(Sketcher.Constraint("Coincident", 3, 2, 0, 1))
sketch10.addConstraint(Sketcher.Constraint("Horizontal", 0))
sketch10.addConstraint(Sketcher.Constraint("Vertical", 1))
sketch10.addConstraint(Sketcher.Constraint("Horizontal", 2))
sketch10.addConstraint(Sketcher.Constraint("Vertical", 3))
sketch10.addConstraint(Sketcher.Constraint("DistanceX", -1, 1, 0, 2, 25.0))
sketch10.addConstraint(Sketcher.Constraint("DistanceX", 0, 2, 0, 1, 33.74143))
sketch10.addConstraint(Sketcher.Constraint("DistanceY", 1, 1, 1, 2, 30.390176))
sketch10.addConstraint(Sketcher.Constraint("DistanceY", -1, 1, 1, 2, 86.613521))
pad6 = body.newObject("PartDesign::Pad", "Pad005")
pad6.Profile = sketch10
pad6.Length = 4

# Sketch on XZ plane
sketch11 = body.newObject("Sketcher::SketchObject", "Sketch010")
sketch11.AttachmentSupport = (doc.getObject("XZ_Plane"), [""])
sketch11.MapMode = "FlatFace"
sketch11.AttachmentOffset = App.Placement(Vector(0, 0, -86.032587), App.Rotation())
sketch11.addGeometry(Part.Circle(Vector(218.2, 76.4, 0), Vector(0, 0, 1), 0.8), False)
sketch11.addGeometry(Part.Circle(Vector(218.2, 73.4, 0), Vector(0, 0, 1), 0.8), False)
sketch11.addGeometry(Part.Circle(Vector(218.2, 70.4, 0), Vector(0, 0, 1), 0.8), False)
sketch11.addGeometry(Part.Circle(Vector(218.2, 67.4, 0), Vector(0, 0, 1), 0.8), False)
sketch11.addGeometry(Part.Circle(Vector(218.2, 64.4, 0), Vector(0, 0, 1), 0.8), False)
sketch11.addGeometry(Part.Circle(Vector(218.2, 61.4, 0), Vector(0, 0, 1), 0.8), False)
sketch11.addGeometry(Part.Circle(Vector(218.2, 58.4, 0), Vector(0, 0, 1), 0.8), False)
sketch11.addGeometry(Part.Circle(Vector(-18.8, 85.4, 0), Vector(0, 0, 1), 0.8), False)
sketch11.addGeometry(Part.Circle(Vector(-18.8, 79.4, 0), Vector(0, 0, 1), 0.8), False)
sketch11.addGeometry(Part.Circle(Vector(-18.8, 70.4, 0), Vector(0, 0, 1), 0.8), False)
sketch11.addGeometry(Part.Circle(Vector(218.2, 85.4, 0), Vector(0, 0, 1), 0.8), False)
sketch11.addGeometry(Part.Circle(Vector(218.2, 82.4, 0), Vector(0, 0, 1), 0.8), False)
sketch11.addGeometry(Part.Circle(Vector(218.2, 79.4, 0), Vector(0, 0, 1), 0.8), False)
sketch11.addGeometry(Part.Circle(Vector(-18.8, 82.4, 0), Vector(0, 0, 1), 0.8), False)
sketch11.addGeometry(Part.Circle(Vector(-18.8, 76.4, 0), Vector(0, 0, 1), 0.8), False)
sketch11.addGeometry(Part.Circle(Vector(-18.8, 73.4, 0), Vector(0, 0, 1), 0.8), False)
sketch11.addGeometry(Part.Circle(Vector(-18.8, 67.4, 0), Vector(0, 0, 1), 0.8), False)
sketch11.addGeometry(Part.Circle(Vector(-18.8, 64.4, 0), Vector(0, 0, 1), 0.8), False)
sketch11.addConstraint(Sketcher.Constraint("Equal", 0, 1))
sketch11.addConstraint(Sketcher.Constraint("Equal", 1, 2))
sketch11.addConstraint(Sketcher.Constraint("Equal", 2, 3))
sketch11.addConstraint(Sketcher.Constraint("Equal", 3, 4))
sketch11.addConstraint(Sketcher.Constraint("Equal", 4, 5))
sketch11.addConstraint(Sketcher.Constraint("Equal", 5, 6))
sketch11.addConstraint(Sketcher.Constraint("Equal", 6, 7))
sketch11.addConstraint(Sketcher.Constraint("Equal", 7, 8))
sketch11.addConstraint(Sketcher.Constraint("Equal", 8, 9))
sketch11.addConstraint(Sketcher.Constraint("Equal", 9, 10))
sketch11.addConstraint(Sketcher.Constraint("Equal", 10, 11))
sketch11.addConstraint(Sketcher.Constraint("Equal", 11, 12))
sketch11.addConstraint(Sketcher.Constraint("Equal", 12, 13))
sketch11.addConstraint(Sketcher.Constraint("Equal", 13, 14))
sketch11.addConstraint(Sketcher.Constraint("Equal", 14, 15))
sketch11.addConstraint(Sketcher.Constraint("Equal", 15, 16))
sketch11.addConstraint(Sketcher.Constraint("Equal", 16, 17))
sketch11.addConstraint(Sketcher.Constraint("Horizontal", 2, 3, 9, 3))
sketch11.addConstraint(Sketcher.Constraint("Horizontal", 7, 3, 10, 3))
sketch11.addConstraint(Sketcher.Constraint("Horizontal", 8, 3, 12, 3))
sketch11.addConstraint(Sketcher.Constraint("Horizontal", 11, 3, 13, 3))
sketch11.addConstraint(Sketcher.Constraint("Horizontal", 0, 3, 14, 3))
sketch11.addConstraint(Sketcher.Constraint("Horizontal", 1, 3, 15, 3))
sketch11.addConstraint(Sketcher.Constraint("Horizontal", 3, 3, 16, 3))
sketch11.addConstraint(Sketcher.Constraint("Horizontal", 4, 3, 17, 3))
sketch11.addConstraint(Sketcher.Constraint("Vertical", 0, 3, 1, 3))
sketch11.addConstraint(Sketcher.Constraint("Vertical", 1, 3, 2, 3))
sketch11.addConstraint(Sketcher.Constraint("Vertical", 2, 3, 3, 3))
sketch11.addConstraint(Sketcher.Constraint("Vertical", 3, 3, 4, 3))
sketch11.addConstraint(Sketcher.Constraint("Vertical", 4, 3, 5, 3))
sketch11.addConstraint(Sketcher.Constraint("Vertical", 5, 3, 6, 3))
sketch11.addConstraint(Sketcher.Constraint("Vertical", 7, 3, 8, 3))
sketch11.addConstraint(Sketcher.Constraint("Vertical", 8, 3, 9, 3))
sketch11.addConstraint(Sketcher.Constraint("Vertical", 6, 3, 10, 3))
sketch11.addConstraint(Sketcher.Constraint("Vertical", 10, 3, 11, 3))
sketch11.addConstraint(Sketcher.Constraint("Vertical", 11, 3, 12, 3))
sketch11.addConstraint(Sketcher.Constraint("Vertical", 9, 3, 13, 3))
sketch11.addConstraint(Sketcher.Constraint("Vertical", 13, 3, 14, 3))
sketch11.addConstraint(Sketcher.Constraint("Vertical", 14, 3, 15, 3))
sketch11.addConstraint(Sketcher.Constraint("Vertical", 15, 3, 16, 3))
sketch11.addConstraint(Sketcher.Constraint("Vertical", 16, 3, 17, 3))
sketch11.addConstraint(Sketcher.Constraint("Diameter", 0, 1.5))
sketch11.addConstraint(Sketcher.Constraint("DistanceY", 1, 3, 0, 3, 3.0))
sketch11.addConstraint(Sketcher.Constraint("DistanceY", 2, 3, 1, 3, 3.0))
sketch11.addConstraint(Sketcher.Constraint("DistanceY", 3, 3, 2, 3, 3.0))
sketch11.addConstraint(Sketcher.Constraint("DistanceY", 4, 3, 3, 3, 3.0))
sketch11.addConstraint(Sketcher.Constraint("DistanceY", 5, 3, 4, 3, 3.0))
sketch11.addConstraint(Sketcher.Constraint("DistanceY", 6, 3, 5, 3, 3.0))
sketch11.addConstraint(Sketcher.Constraint("DistanceY", 0, 3, 7, 3, 9.0))
sketch11.addConstraint(Sketcher.Constraint("DistanceY", 8, 3, 7, 3, 6.0))
sketch11.addConstraint(Sketcher.Constraint("DistanceY", 11, 3, 10, 3, 3.0))
sketch11.addConstraint(Sketcher.Constraint("DistanceY", -1, 1, 0, 3, 76.375012))
sketch11.addConstraint(Sketcher.Constraint("DistanceX", -1, 1, 0, 3, 218.161156))
sketch11.addConstraint(Sketcher.Constraint("DistanceX", 7, 3, -1, 1, 18.761156))
pad7 = body.newObject("PartDesign::Pad", "Pad006")
pad7.Profile = sketch11
pad7.Length = 27.291157

doc.recompute()
